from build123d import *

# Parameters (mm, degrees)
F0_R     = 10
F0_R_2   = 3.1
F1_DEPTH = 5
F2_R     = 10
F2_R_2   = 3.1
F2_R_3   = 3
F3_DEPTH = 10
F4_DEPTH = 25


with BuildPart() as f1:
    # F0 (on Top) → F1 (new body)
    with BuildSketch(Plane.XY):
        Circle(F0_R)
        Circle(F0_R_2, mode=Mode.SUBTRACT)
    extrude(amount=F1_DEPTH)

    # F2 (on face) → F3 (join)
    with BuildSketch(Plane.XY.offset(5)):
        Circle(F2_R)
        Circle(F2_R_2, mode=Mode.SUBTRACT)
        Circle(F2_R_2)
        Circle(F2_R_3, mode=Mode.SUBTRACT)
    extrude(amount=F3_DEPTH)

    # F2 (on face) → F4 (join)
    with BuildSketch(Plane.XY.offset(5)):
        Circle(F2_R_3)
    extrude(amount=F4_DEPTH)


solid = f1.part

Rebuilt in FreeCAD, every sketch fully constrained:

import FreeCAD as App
import Part
import Sketcher

V = App.Vector
Q = App.Units.Quantity

doc = App.newDocument("Part")
params = doc.addObject("Spreadsheet::Sheet", "Params")
for row, (alias, value) in enumerate([
    ("sketch1_diameter", "20 mm"),
    ("sketch1_diameter2", "6.2 mm"),
    ("pad1_length", "5 mm"),
    ("sketch2_diameter", "20 mm"),
    ("sketch2_diameter2", "6 mm"),
    ("pad2_length", "10 mm"),
    ("sketch3_diameter", "6 mm"),
    ("pad3_length", "25 mm"),
], start=1):
    params.set(f"A{row}", alias)
    params.set(f"B{row}", "=" + value)
    params.setAlias(f"B{row}", alias)

body = doc.addObject("PartDesign::Body", "Body")

sketch1 = body.newObject("Sketcher::SketchObject", "Sketch")
sketch1.AttachmentSupport = (doc.getObject("XY_Plane"), [""])
sketch1.MapMode = "FlatFace"
sketch1.addGeometry([
    Part.Circle(V(0, 0, 0), V(0, 0, 1), 10),
    Part.Circle(V(0, 0, 0), V(0, 0, 1), 3.1),
], False)
sketch1.addConstraint([
    Sketcher.Constraint("Coincident", 0, 3, -1, 1),
    Sketcher.Constraint("Coincident", 1, 3, -1, 1),
    Sketcher.Constraint("Diameter", 0, Q("20 mm")),
    Sketcher.Constraint("Diameter", 1, Q("6.2 mm")),
])
sketch1.setExpression("Constraints[2]", "Params.sketch1_diameter")
sketch1.setExpression("Constraints[3]", "Params.sketch1_diameter2")
pad1 = body.newObject("PartDesign::Pad", "Pad")
pad1.Profile = sketch1
pad1.setExpression("Length", "Params.pad1_length")

sketch2 = body.newObject("Sketcher::SketchObject", "Sketch001")
sketch2.AttachmentSupport = (doc.getObject("XY_Plane"), [""])
sketch2.MapMode = "FlatFace"
sketch2.AttachmentOffset = App.Placement(V(0, 0, 5), App.Rotation())
sketch2.addGeometry([
    Part.Circle(V(0, 0, 0), V(0, 0, 1), 10),
    Part.Circle(V(0, 0, 0), V(0, 0, 1), 3),
], False)
sketch2.addConstraint([
    Sketcher.Constraint("Coincident", 0, 3, -1, 1),
    Sketcher.Constraint("Coincident", 1, 3, -1, 1),
    Sketcher.Constraint("Diameter", 0, Q("20 mm")),
    Sketcher.Constraint("Diameter", 1, Q("6 mm")),
])
sketch2.setExpression("Constraints[2]", "Params.sketch2_diameter")
sketch2.setExpression("Constraints[3]", "Params.sketch2_diameter2")
pad2 = body.newObject("PartDesign::Pad", "Pad001")
pad2.Profile = sketch2
pad2.setExpression("Length", "Params.pad2_length")

sketch3 = body.newObject("Sketcher::SketchObject", "Sketch002")
sketch3.AttachmentSupport = (doc.getObject("XY_Plane"), [""])
sketch3.MapMode = "FlatFace"
sketch3.AttachmentOffset = App.Placement(V(0, 0, 5), App.Rotation())
sketch3.addGeometry(Part.Circle(V(0, 0, 0), V(0, 0, 1), 3), False)
sketch3.addConstraint([
    Sketcher.Constraint("Coincident", 0, 3, -1, 1),
    Sketcher.Constraint("Diameter", 0, Q("6 mm")),
])
sketch3.setExpression("Constraints[1]", "Params.sketch3_diameter")
pad3 = body.newObject("PartDesign::Pad", "Pad002")
pad3.Profile = sketch3
pad3.setExpression("Length", "Params.pad3_length")

doc.recompute()
